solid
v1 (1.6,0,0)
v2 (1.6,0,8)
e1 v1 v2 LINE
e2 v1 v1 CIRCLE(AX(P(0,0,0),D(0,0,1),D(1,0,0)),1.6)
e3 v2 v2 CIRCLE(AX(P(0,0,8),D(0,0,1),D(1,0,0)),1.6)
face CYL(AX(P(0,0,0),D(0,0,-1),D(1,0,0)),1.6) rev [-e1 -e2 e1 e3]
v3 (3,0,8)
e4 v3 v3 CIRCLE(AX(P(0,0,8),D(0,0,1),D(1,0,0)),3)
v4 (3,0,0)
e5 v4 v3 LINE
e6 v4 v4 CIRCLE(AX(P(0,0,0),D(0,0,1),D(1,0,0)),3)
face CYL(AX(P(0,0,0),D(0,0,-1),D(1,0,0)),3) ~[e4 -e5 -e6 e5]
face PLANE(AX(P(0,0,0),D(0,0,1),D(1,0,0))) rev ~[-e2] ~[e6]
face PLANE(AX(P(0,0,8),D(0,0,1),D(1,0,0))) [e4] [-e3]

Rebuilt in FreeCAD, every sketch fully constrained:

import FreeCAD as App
import Part
import Sketcher
from FreeCAD import Vector

doc = App.newDocument("Part")
params = doc.addObject("Spreadsheet::Sheet", "Params")
for row, (alias, value) in enumerate([
    ("sketch1_diameter", "6 mm"),
    ("sketch1_diameter2", "3.2 mm"),
    ("pad1_length", "8 mm"),
], start=1):
    params.set(f"A{row}", alias)
    params.set(f"B{row}", "=" + value)
    params.setAlias(f"B{row}", alias)

body = doc.addObject("PartDesign::Body", "Body")

sketch1 = body.newObject("Sketcher::SketchObject", "Sketch")
sketch1.AttachmentSupport = (doc.getObject("XY_Plane"), [""])
sketch1.MapMode = "FlatFace"
sketch1.addGeometry([
    Part.Circle(Vector(0, 0, 0), Vector(0, 0, 1), 3),
    Part.Circle(Vector(0, 0, 0), Vector(0, 0, 1), 1.6),
], False)
sketch1.addConstraint([
    Sketcher.Constraint("Coincident", 0, 3, -1, 1),
    Sketcher.Constraint("Coincident", 1, 3, -1, 1),
    Sketcher.Constraint("Diameter", 0, 6.0),
    Sketcher.Constraint("Diameter", 1, 3.2),
])
sketch1.setExpression("Constraints[2]", "Params.sketch1_diameter")
sketch1.setExpression("Constraints[3]", "Params.sketch1_diameter2")
pad1 = body.newObject("PartDesign::Pad", "Pad")
pad1.Profile = sketch1
pad1.setExpression("Length", "Params.pad1_length")

doc.recompute()
